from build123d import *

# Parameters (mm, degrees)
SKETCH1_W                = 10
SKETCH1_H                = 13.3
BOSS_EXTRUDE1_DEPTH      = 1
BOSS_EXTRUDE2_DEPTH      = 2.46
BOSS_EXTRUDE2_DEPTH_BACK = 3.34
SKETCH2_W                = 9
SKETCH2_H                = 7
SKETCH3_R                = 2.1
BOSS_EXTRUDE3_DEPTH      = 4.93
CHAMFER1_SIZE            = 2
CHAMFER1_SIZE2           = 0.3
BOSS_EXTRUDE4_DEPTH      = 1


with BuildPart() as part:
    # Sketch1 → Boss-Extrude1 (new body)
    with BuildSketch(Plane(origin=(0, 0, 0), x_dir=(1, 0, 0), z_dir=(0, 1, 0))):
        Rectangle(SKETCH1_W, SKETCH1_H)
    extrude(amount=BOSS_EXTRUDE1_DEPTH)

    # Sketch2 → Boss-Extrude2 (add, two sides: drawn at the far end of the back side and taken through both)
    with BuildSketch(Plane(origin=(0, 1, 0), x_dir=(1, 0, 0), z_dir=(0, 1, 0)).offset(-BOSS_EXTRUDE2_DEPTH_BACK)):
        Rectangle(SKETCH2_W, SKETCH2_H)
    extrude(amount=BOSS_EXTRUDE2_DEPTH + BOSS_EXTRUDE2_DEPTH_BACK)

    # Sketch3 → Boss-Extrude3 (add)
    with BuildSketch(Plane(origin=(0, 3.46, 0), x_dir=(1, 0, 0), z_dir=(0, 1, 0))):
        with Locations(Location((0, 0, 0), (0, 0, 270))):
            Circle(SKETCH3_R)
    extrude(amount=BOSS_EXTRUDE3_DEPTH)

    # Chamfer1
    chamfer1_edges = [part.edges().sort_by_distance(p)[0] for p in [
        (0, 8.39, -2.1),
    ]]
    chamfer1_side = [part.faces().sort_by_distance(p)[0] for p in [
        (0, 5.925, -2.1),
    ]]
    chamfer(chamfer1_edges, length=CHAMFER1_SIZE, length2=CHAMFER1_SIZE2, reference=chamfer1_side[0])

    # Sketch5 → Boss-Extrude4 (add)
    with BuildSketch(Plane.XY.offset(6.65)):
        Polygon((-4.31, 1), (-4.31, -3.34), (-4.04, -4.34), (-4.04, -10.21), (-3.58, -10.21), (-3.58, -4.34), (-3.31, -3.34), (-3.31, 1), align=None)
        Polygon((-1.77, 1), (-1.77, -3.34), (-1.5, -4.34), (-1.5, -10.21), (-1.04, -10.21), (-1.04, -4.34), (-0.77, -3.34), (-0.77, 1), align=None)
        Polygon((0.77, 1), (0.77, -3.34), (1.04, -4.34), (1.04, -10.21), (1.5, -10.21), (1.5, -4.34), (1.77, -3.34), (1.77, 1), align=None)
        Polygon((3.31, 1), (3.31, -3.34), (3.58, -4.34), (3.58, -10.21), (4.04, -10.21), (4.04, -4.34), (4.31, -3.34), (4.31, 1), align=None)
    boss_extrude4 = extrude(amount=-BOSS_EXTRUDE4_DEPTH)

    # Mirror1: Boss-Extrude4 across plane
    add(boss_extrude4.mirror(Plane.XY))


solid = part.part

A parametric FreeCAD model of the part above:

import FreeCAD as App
import Part
import Sketcher
from FreeCAD import Vector


def edges_at(feature, points):
    """Names of the edges that pass closest to the given points."""
    edges = feature.Shape.Edges
    near = lambda p: min(range(len(edges)), key=lambda i: edges[i].distToShape(Part.Vertex(*p))[0])
    return sorted({f"Edge{near(p) + 1}" for p in points})

doc = App.newDocument("Part")
body = doc.addObject("PartDesign::Body", "Body")

# Sketch on XZ plane
sketch1 = body.newObject("Sketcher::SketchObject", "Sketch")
sketch1.AttachmentSupport = (doc.getObject("XZ_Plane"), [""])
sketch1.MapMode = "FlatFace"
sketch1.addGeometry([
    Part.LineSegment(Vector(-5, -7, 0), Vector(-5, 7, 0)),
    Part.LineSegment(Vector(-5, 7, 0), Vector(5, 7, 0)),
    Part.LineSegment(Vector(5, 7, 0), Vector(5, -7, 0)),
    Part.LineSegment(Vector(5, -7, 0), Vector(-5, -7, 0)),
], False)
sketch1.addConstraint([
    Sketcher.Constraint("Coincident", 0, 2, 1, 1),
    Sketcher.Constraint("Coincident", 1, 2, 2, 1),
    Sketcher.Constraint("Coincident", 2, 2, 3, 1),
    Sketcher.Constraint("Coincident", 3, 2, 0, 1),
    Sketcher.Constraint("Vertical", 0),
    Sketcher.Constraint("Horizontal", 1),
    Sketcher.Constraint("Vertical", 2),
    Sketcher.Constraint("Horizontal", 3),
    Sketcher.Constraint("Symmetric", 0, 2, 2, 2, -1, 1),
    Sketcher.Constraint("DistanceX", 1, 1, 1, 2, 10.0),
    Sketcher.Constraint("DistanceY", 0, 1, 0, 2, 13.3),
])
pad1 = body.newObject("PartDesign::Pad", "Pad")
pad1.Profile = sketch1
pad1.Length = 1
pad1.Reversed = True

# Sketch on XZ plane
sketch2 = body.newObject("Sketcher::SketchObject", "Sketch001")
sketch2.AttachmentSupport = (doc.getObject("XZ_Plane"), [""])
sketch2.MapMode = "FlatFace"
sketch2.AttachmentOffset = App.Placement(Vector(0, 0, -1), App.Rotation())
sketch2.addGeometry([
    Part.LineSegment(Vector(-4, -4, 0), Vector(-4, 4, 0)),
    Part.LineSegment(Vector(-4, 4, 0), Vector(4, 4, 0)),
    Part.LineSegment(Vector(4, 4, 0), Vector(4, -4, 0)),
    Part.LineSegment(Vector(4, -4, 0), Vector(-4, -4, 0)),
], False)
sketch2.addConstraint([
    Sketcher.Constraint("Coincident", 0, 2, 1, 1),
    Sketcher.Constraint("Coincident", 1, 2, 2, 1),
    Sketcher.Constraint("Coincident", 2, 2, 3, 1),
    Sketcher.Constraint("Coincident", 3, 2, 0, 1),
    Sketcher.Constraint("Vertical", 0),
    Sketcher.Constraint("Horizontal", 1),
    Sketcher.Constraint("Vertical", 2),
    Sketcher.Constraint("Horizontal", 3),
    Sketcher.Constraint("Symmetric", 0, 2, 2, 2, -1, 1),
    Sketcher.Constraint("DistanceX", 1, 1, 1, 2, 9.0),
    Sketcher.Constraint("DistanceY", 0, 1, 0, 2, 7.0),
])
pad2 = body.newObject("PartDesign::Pad", "Pad001")
pad2.Profile = sketch2
pad2.Type = "TwoLengths"
pad2.Length = 2.46
pad2.Length2 = 3.34
pad2.Reversed = True

# Sketch on XZ plane
sketch3 = body.newObject("Sketcher::SketchObject", "Sketch002")
sketch3.AttachmentSupport = (doc.getObject("XZ_Plane"), [""])
sketch3.MapMode = "FlatFace"
sketch3.AttachmentOffset = App.Placement(Vector(0, 0, -3.46), App.Rotation())
sketch3.addGeometry(Part.Circle(Vector(0, 0, 0), Vector(0, 0, 1), 2.1), False)
sketch3.addConstraint([
    Sketcher.Constraint("Coincident", 0, 3, -1, 1),
    Sketcher.Constraint("Diameter", 0, 4.2),
])
pad3 = body.newObject("PartDesign::Pad", "Pad002")
pad3.Profile = sketch3
pad3.Length = 4.93
pad3.Reversed = True
doc.recompute()

chamfer = body.newObject("PartDesign::Chamfer", "Chamfer")
chamfer.Base = (pad3, edges_at(pad3, [(0, 8.39, -2.1)]))
chamfer.ChamferType = "Two distances"
chamfer.Size = 2
chamfer.Size2 = 0.3

# Sketch on XY plane
sketch4 = body.newObject("Sketcher::SketchObject", "Sketch003")
sketch4.AttachmentSupport = (doc.getObject("XY_Plane"), [""])
sketch4.MapMode = "FlatFace"
sketch4.AttachmentOffset = App.Placement(Vector(0, 0, 6.65), App.Rotation())
sketch4.addGeometry([
    Part.LineSegment(Vector(-4.31, 1, 0), Vector(-4.31, -3.34, 0)),  # 0
    Part.LineSegment(Vector(-4.31, -3.34, 0), Vector(-4.04, -4.34, 0)),  # 1
    Part.LineSegment(Vector(-4.04, -4.34, 0), Vector(-4.04, -10.21, 0)),  # 2
    Part.LineSegment(Vector(-4.04, -10.21, 0), Vector(-3.58, -10.21, 0)),  # 3
    Part.LineSegment(Vector(-3.58, -10.21, 0), Vector(-3.58, -4.34, 0)),  # 4
    Part.LineSegment(Vector(-3.58, -4.34, 0), Vector(-3.31, -3.34, 0)),  # 5
    Part.LineSegment(Vector(-3.31, -3.34, 0), Vector(-3.31, 1, 0)),  # 6
    Part.LineSegment(Vector(-3.31, 1, 0), Vector(-4.31, 1, 0)),  # 7
    Part.LineSegment(Vector(-1.77, 1, 0), Vector(-1.77, -3.34, 0)),  # 8
    Part.LineSegment(Vector(-1.77, -3.34, 0), Vector(-1.5, -4.34, 0)),  # 9
    Part.LineSegment(Vector(-1.5, -4.34, 0), Vector(-1.5, -10.21, 0)),  # 10
    Part.LineSegment(Vector(-1.5, -10.21, 0), Vector(-1.04, -10.21, 0)),  # 11
    Part.LineSegment(Vector(-1.04, -10.21, 0), Vector(-1.04, -4.34, 0)),  # 12
    Part.LineSegment(Vector(-1.04, -4.34, 0), Vector(-0.77, -3.34, 0)),  # 13
    Part.LineSegment(Vector(-0.77, -3.34, 0), Vector(-0.77, 1, 0)),  # 14
    Part.LineSegment(Vector(-0.77, 1, 0), Vector(-1.77, 1, 0)),  # 15
    Part.LineSegment(Vector(0.77, 1, 0), Vector(0.77, -3.34, 0)),  # 16
    Part.LineSegment(Vector(0.77, -3.34, 0), Vector(1.04, -4.34, 0)),  # 17
    Part.LineSegment(Vector(1.04, -4.34, 0), Vector(1.04, -10.21, 0)),  # 18
    Part.LineSegment(Vector(1.04, -10.21, 0), Vector(1.5, -10.21, 0)),  # 19
    Part.LineSegment(Vector(1.5, -10.21, 0), Vector(1.5, -4.34, 0)),  # 20
    Part.LineSegment(Vector(1.5, -4.34, 0), Vector(1.77, -3.34, 0)),  # 21
    Part.LineSegment(Vector(1.77, -3.34, 0), Vector(1.77, 1, 0)),  # 22
    Part.LineSegment(Vector(1.77, 1, 0), Vector(0.77, 1, 0)),  # 23
    Part.LineSegment(Vector(3.31, 1, 0), Vector(3.31, -3.34, 0)),  # 24
    Part.LineSegment(Vector(3.31, -3.34, 0), Vector(3.58, -4.34, 0)),  # 25
    Part.LineSegment(Vector(3.58, -4.34, 0), Vector(3.58, -10.21, 0)),  # 26
    Part.LineSegment(Vector(3.58, -10.21, 0), Vector(4.04, -10.21, 0)),  # 27
    Part.LineSegment(Vector(4.04, -10.21, 0), Vector(4.04, -4.34, 0)),  # 28
    Part.LineSegment(Vector(4.04, -4.34, 0), Vector(4.31, -3.34, 0)),  # 29
    Part.LineSegment(Vector(4.31, -3.34, 0), Vector(4.31, 1, 0)),  # 30
    Part.LineSegment(Vector(4.31, 1, 0), Vector(3.31, 1, 0)),  # 31
], False)
sketch4.addConstraint([
    Sketcher.Constraint("Coincident", 0, 2, 1, 1),
    Sketcher.Constraint("Coincident", 1, 2, 2, 1),
    Sketcher.Constraint("Coincident", 2, 2, 3, 1),
    Sketcher.Constraint("Coincident", 3, 2, 4, 1),
    Sketcher.Constraint("Coincident", 4, 2, 5, 1),
    Sketcher.Constraint("Coincident", 5, 2, 6, 1),
    Sketcher.Constraint("Coincident", 6, 2, 7, 1),
    Sketcher.Constraint("Coincident", 7, 2, 0, 1),
    Sketcher.Constraint("Coincident", 8, 2, 9, 1),
    Sketcher.Constraint("Coincident", 9, 2, 10, 1),
    Sketcher.Constraint("Coincident", 10, 2, 11, 1),
    Sketcher.Constraint("Coincident", 11, 2, 12, 1),
    Sketcher.Constraint("Coincident", 12, 2, 13, 1),
    Sketcher.Constraint("Coincident", 13, 2, 14, 1),
    Sketcher.Constraint("Coincident", 14, 2, 15, 1),
    Sketcher.Constraint("Coincident", 15, 2, 8, 1),
    Sketcher.Constraint("Coincident", 16, 2, 17, 1),
    Sketcher.Constraint("Coincident", 17, 2, 18, 1),
    Sketcher.Constraint("Coincident", 18, 2, 19, 1),
    Sketcher.Constraint("Coincident", 19, 2, 20, 1),
    Sketcher.Constraint("Coincident", 20, 2, 21, 1),
    Sketcher.Constraint("Coincident", 21, 2, 22, 1),
    Sketcher.Constraint("Coincident", 22, 2, 23, 1),
    Sketcher.Constraint("Coincident", 23, 2, 16, 1),
    Sketcher.Constraint("Coincident", 24, 2, 25, 1),
    Sketcher.Constraint("Coincident", 25, 2, 26, 1),
    Sketcher.Constraint("Coincident", 26, 2, 27, 1),
    Sketcher.Constraint("Coincident", 27, 2, 28, 1),
    Sketcher.Constraint("Coincident", 28, 2, 29, 1),
    Sketcher.Constraint("Coincident", 29, 2, 30, 1),
    Sketcher.Constraint("Coincident", 30, 2, 31, 1),
    Sketcher.Constraint("Coincident", 31, 2, 24, 1),
    Sketcher.Constraint("Vertical", 0),
    Sketcher.Constraint("Vertical", 2),
    Sketcher.Constraint("Horizontal", 3),
    Sketcher.Constraint("Vertical", 4),
    Sketcher.Constraint("Vertical", 6),
    Sketcher.Constraint("Horizontal", 7),
    Sketcher.Constraint("Vertical", 8),
    Sketcher.Constraint("Vertical", 10),
    Sketcher.Constraint("Horizontal", 11),
    Sketcher.Constraint("Vertical", 12),
    Sketcher.Constraint("Vertical", 14),
    Sketcher.Constraint("Horizontal", 15),
    Sketcher.Constraint("Vertical", 16),
    Sketcher.Constraint("Vertical", 18),
    Sketcher.Constraint("Horizontal", 19),
    Sketcher.Constraint("Vertical", 20),
    Sketcher.Constraint("Vertical", 22),
    Sketcher.Constraint("Horizontal", 23),
    Sketcher.Constraint("Vertical", 24),
    Sketcher.Constraint("Vertical", 26),
    Sketcher.Constraint("Horizontal", 27),
    Sketcher.Constraint("Vertical", 28),
    Sketcher.Constraint("Vertical", 30),
    Sketcher.Constraint("Horizontal", 31),
    Sketcher.Constraint("Symmetric", 13, 2, 16, 2, -2),
    Sketcher.Constraint("Symmetric", 12, 2, 17, 2, -2),
    Sketcher.Constraint("Symmetric", 10, 2, 19, 2, -2),
    Sketcher.Constraint("Symmetric", 8, 2, 21, 2, -2),
    Sketcher.Constraint("Symmetric", 5, 2, 24, 2, -2),
    Sketcher.Constraint("Symmetric", 4, 2, 25, 2, -2),
    Sketcher.Constraint("Symmetric", 2, 2, 27, 2, -2),
    Sketcher.Constraint("Symmetric", 0, 2, 29, 2, -2),
    Sketcher.Constraint("Parallel", 1, 9),
    Sketcher.Constraint("Parallel", 5, 13),
    Sketcher.Constraint("Parallel", 9, 17),
    Sketcher.Constraint("Parallel", 13, 21),
    Sketcher.Constraint("Parallel", 21, 29),
    Sketcher.Constraint("Horizontal", 1, 2, 4, 2),
    Sketcher.Constraint("Horizontal", 0, 2, 5, 2),
    Sketcher.Constraint("Horizontal", 5, 2, 8, 2),
    Sketcher.Constraint("Horizontal", 4, 2, 9, 2),
    Sketcher.Constraint("Horizontal", 3, 2, 10, 2),
    Sketcher.Constraint("Horizontal", 9, 2, 12, 2),
    Sketcher.Constraint("Horizontal", 8, 2, 13, 2),
    Sketcher.Constraint("Horizontal", 7, 2, 14, 2),
    Sketcher.Constraint("Horizontal", 15, 2, 22, 2),
    Sketcher.Constraint("Horizontal", 23, 2, 30, 2),
    Sketcher.Constraint("Equal", 3, 11),
    Sketcher.Constraint("DistanceX", 7, 2, 7, 1, 1.0),
    Sketcher.Constraint("DistanceY", -1, 1, 6, 2, 1.0),
    Sketcher.Constraint("DistanceY", 1, 2, 0, 2, 1.0),
    Sketcher.Constraint("DistanceX", 2, 2, 11, 2, 3.0),
    Sketcher.Constraint("DistanceX", 10, 2, 19, 2, 3.0),
    Sketcher.Constraint("DistanceX", 3, 1, 3, 2, 0.46),
    Sketcher.Constraint("DistanceY", 0, 2, 0, 1, 4.34),
    Sketcher.Constraint("DistanceY", 2, 2, 2, 1, 5.87),
])
pad4 = body.newObject("PartDesign::Pad", "Pad003")
pad4.Profile = sketch4
pad4.Length = 1
pad4.Reversed = True
doc.recompute()

mirrored = body.newObject("PartDesign::Mirrored", "Mirrored")
mirrored.Originals = [pad4]
mirrored.MirrorPlane = (doc.getObject("XY_Plane"), [""])
body.Tip = mirrored

doc.recompute()
